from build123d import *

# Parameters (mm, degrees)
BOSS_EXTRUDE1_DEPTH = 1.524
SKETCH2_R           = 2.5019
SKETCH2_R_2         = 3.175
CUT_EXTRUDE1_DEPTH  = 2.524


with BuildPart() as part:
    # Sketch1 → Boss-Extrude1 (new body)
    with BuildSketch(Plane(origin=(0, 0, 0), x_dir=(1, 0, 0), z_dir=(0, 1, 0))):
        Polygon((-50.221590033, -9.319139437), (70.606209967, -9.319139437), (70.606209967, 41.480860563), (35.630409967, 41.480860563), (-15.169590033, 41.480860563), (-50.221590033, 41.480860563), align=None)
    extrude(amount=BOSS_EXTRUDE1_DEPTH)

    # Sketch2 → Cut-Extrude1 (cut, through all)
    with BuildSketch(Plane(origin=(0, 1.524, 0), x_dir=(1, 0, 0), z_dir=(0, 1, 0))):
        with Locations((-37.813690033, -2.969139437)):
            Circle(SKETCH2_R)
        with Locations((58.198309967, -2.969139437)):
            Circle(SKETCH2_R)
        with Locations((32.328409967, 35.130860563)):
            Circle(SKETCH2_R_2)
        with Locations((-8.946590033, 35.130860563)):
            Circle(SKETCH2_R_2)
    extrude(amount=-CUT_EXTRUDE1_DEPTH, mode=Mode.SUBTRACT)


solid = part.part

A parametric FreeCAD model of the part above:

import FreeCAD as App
import Part
import Sketcher

V = App.Vector
Q = App.Units.Quantity


def add_polygon(sketch, points):
    """Adds a closed chain of lines whose ends are joined by coincident constraints."""
    first, n = sketch.GeometryCount, len(points)
    for a, b in zip(points, points[1:] + points[:1]):
        sketch.addGeometry(Part.LineSegment(App.Vector(*a, 0), App.Vector(*b, 0)), False)
    for i in range(n):
        sketch.addConstraint(Sketcher.Constraint("Coincident", first + i, 2, first + (i + 1) % n, 1))

doc = App.newDocument("Part")
body = doc.addObject("PartDesign::Body", "Body")

# Sketch on XZ plane
sketch1 = body.newObject("Sketcher::SketchObject", "Sketch")
sketch1.AttachmentSupport = (doc.getObject("XZ_Plane"), [""])
sketch1.MapMode = "FlatFace"
add_polygon(sketch1, [(-50, 9), (71, 9), (71, -41), (-50, -41)])  # lines 0-3
sketch1.addConstraint([
    Sketcher.Constraint("Horizontal", 0),
    Sketcher.Constraint("Vertical", 1),
    Sketcher.Constraint("Horizontal", 2),
    Sketcher.Constraint("Vertical", 3),
    Sketcher.Constraint("DistanceY", 1, 2, 1, 1, Q("2 in")),
    Sketcher.Constraint("DistanceX", 0, 1, 0, 2, Q("4.757 in")),
    Sketcher.Constraint("DistanceX", -1, 1, 0, 2, Q("70.60621 mm")),
    Sketcher.Constraint("DistanceY", -1, 1, 0, 2, Q("9.319139 mm")),
])
pad1 = body.newObject("PartDesign::Pad", "Pad")
pad1.Profile = sketch1
pad1.Length = Q("0.06 in")
pad1.Reversed = True

# Sketch on XZ plane
sketch2 = body.newObject("Sketcher::SketchObject", "Sketch001")
sketch2.AttachmentSupport = (doc.getObject("XZ_Plane"), [""])
sketch2.MapMode = "FlatFace"
sketch2.AttachmentOffset = App.Placement(V(0, 0, -0.06 * 25.4), App.Rotation())
sketch2.addGeometry([
    Part.Circle(V(-37.8, 3, 0), V(0, 0, 1), 2.5),
    Part.Circle(V(58.2, 3, 0), V(0, 0, 1), 2.5),
    Part.Circle(V(32.3, -35.1, 0), V(0, 0, 1), 3.2),
    Part.Circle(V(-8.9, -35.1, 0), V(0, 0, 1), 3.2),
], False)
sketch2.addConstraint([
    Sketcher.Constraint("Equal", 0, 1),
    Sketcher.Constraint("Equal", 2, 3),
    Sketcher.Constraint("Horizontal", 0, 3, 1, 3),
    Sketcher.Constraint("Horizontal", 2, 3, 3, 3),
    Sketcher.Constraint("Diameter", 2, Q("0.25 in")),
    Sketcher.Constraint("Diameter", 0, Q("0.197 in")),
    Sketcher.Constraint("DistanceY", 2, 3, 1, 3, Q("1.5 in")),
    Sketcher.Constraint("DistanceX", 0, 3, 1, 3, Q("3.78 in")),
    Sketcher.Constraint("DistanceX", 3, 3, 2, 3, Q("1.625 in")),
    Sketcher.Constraint("DistanceX", 2, 3, 1, 3, Q("1.0185 in")),
    Sketcher.Constraint("DistanceX", 0, 3, -1, 1, Q("37.81369 mm")),
    Sketcher.Constraint("DistanceY", -1, 1, 0, 3, Q("2.969139 mm")),
])
pocket1 = body.newObject("PartDesign::Pocket", "Pocket")
pocket1.Profile = sketch2
pocket1.Type = "ThroughAll"
pocket1.Reversed = True

doc.recompute()
